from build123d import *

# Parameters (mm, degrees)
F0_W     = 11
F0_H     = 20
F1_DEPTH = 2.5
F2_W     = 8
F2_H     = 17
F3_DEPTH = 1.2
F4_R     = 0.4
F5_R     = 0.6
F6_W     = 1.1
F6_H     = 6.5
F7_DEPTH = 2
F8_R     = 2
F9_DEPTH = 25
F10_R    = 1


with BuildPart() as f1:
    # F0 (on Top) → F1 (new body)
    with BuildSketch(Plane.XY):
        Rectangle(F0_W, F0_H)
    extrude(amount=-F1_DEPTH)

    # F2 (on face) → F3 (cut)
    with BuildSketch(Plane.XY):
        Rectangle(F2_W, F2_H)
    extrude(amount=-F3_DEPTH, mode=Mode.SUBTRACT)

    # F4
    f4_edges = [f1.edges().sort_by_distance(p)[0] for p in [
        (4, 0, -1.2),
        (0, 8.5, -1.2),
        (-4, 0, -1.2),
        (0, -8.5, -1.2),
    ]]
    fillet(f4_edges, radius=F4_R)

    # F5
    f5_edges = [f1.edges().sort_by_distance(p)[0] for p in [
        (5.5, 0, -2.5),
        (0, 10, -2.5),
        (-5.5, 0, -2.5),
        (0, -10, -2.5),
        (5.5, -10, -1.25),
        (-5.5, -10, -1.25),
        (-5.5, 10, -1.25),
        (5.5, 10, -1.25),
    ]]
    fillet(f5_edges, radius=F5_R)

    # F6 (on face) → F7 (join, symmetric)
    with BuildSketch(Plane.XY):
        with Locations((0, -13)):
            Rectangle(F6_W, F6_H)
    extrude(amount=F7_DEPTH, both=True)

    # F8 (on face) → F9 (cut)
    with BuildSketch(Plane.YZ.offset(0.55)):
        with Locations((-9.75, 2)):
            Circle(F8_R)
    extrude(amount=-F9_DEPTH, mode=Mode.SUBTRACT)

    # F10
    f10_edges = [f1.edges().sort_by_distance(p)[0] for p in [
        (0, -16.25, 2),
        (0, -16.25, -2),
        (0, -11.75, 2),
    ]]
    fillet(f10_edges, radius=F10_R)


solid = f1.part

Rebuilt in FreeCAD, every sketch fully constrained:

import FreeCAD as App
import Part
import Sketcher

V = App.Vector


def edges_at(feature, points):
    """Names of the edges that pass closest to the given points."""
    edges = feature.Shape.Edges
    near = lambda p: min(range(len(edges)), key=lambda i: edges[i].distToShape(Part.Vertex(*p))[0])
    return sorted({f"Edge{near(p) + 1}" for p in points})

doc = App.newDocument("Part")
body = doc.addObject("PartDesign::Body", "Body")

# Sketch on XY plane
sketch1 = doc.addObject("Sketcher::SketchObject", "Sketch")
body.addObject(sketch1)
sketch1.AttachmentSupport = (doc.XY_Plane, [""])
sketch1.MapMode = "FlatFace"
sketch1.addGeometry([
    Part.LineSegment(V(-6, 10, 0), V(-6, -10, 0)),
    Part.LineSegment(V(-6, -10, 0), V(6, -10, 0)),
    Part.LineSegment(V(6, -10, 0), V(6, 10, 0)),
    Part.LineSegment(V(6, 10, 0), V(-6, 10, 0)),
], False)
sketch1.addConstraint([
    Sketcher.Constraint("Coincident", 0, 2, 1, 1),
    Sketcher.Constraint("Coincident", 1, 2, 2, 1),
    Sketcher.Constraint("Coincident", 2, 2, 3, 1),
    Sketcher.Constraint("Coincident", 3, 2, 0, 1),
    Sketcher.Constraint("Vertical", 0),
    Sketcher.Constraint("Horizontal", 1),
    Sketcher.Constraint("Vertical", 2),
    Sketcher.Constraint("Horizontal", 3),
    Sketcher.Constraint("Symmetric", 0, 2, 2, 2, -1, 1),
    Sketcher.Constraint("DistanceX", 1, 1, 1, 2, 11.0),
    Sketcher.Constraint("DistanceY", 0, 2, 0, 1, 20.0),
])
pad1 = doc.addObject("PartDesign::Pad", "Pad")
body.addObject(pad1)
pad1.Profile = sketch1
pad1.Length = 2.5
pad1.Reversed = True

# Sketch on XY plane
sketch2 = doc.addObject("Sketcher::SketchObject", "Sketch001")
body.addObject(sketch2)
sketch2.AttachmentSupport = (doc.XY_Plane, [""])
sketch2.MapMode = "FlatFace"
sketch2.addGeometry([
    Part.LineSegment(V(-4, 8, 0), V(-4, -8, 0)),
    Part.LineSegment(V(-4, -8, 0), V(4, -8, 0)),
    Part.LineSegment(V(4, -8, 0), V(4, 8, 0)),
    Part.LineSegment(V(4, 8, 0), V(-4, 8, 0)),
], False)
sketch2.addConstraint([
    Sketcher.Constraint("Coincident", 0, 2, 1, 1),
    Sketcher.Constraint("Coincident", 1, 2, 2, 1),
    Sketcher.Constraint("Coincident", 2, 2, 3, 1),
    Sketcher.Constraint("Coincident", 3, 2, 0, 1),
    Sketcher.Constraint("Vertical", 0),
    Sketcher.Constraint("Horizontal", 1),
    Sketcher.Constraint("Vertical", 2),
    Sketcher.Constraint("Horizontal", 3),
    Sketcher.Constraint("Symmetric", 0, 2, 2, 2, -1, 1),
    Sketcher.Constraint("DistanceX", 1, 1, 1, 2, 8.0),
    Sketcher.Constraint("DistanceY", 0, 2, 0, 1, 17.0),
])
pocket1 = doc.addObject("PartDesign::Pocket", "Pocket")
body.addObject(pocket1)
pocket1.Profile = sketch2
pocket1.Length = 1.2
doc.recompute()

fillet = doc.addObject("PartDesign::Fillet", "Fillet")
body.addObject(fillet)
fillet.Base = (pocket1, edges_at(pocket1, [
    (4, 0, -1.2),
    (0, 8.5, -1.2),
    (-4, 0, -1.2),
    (0, -8.5, -1.2),
]))
fillet.Radius = 0.4
doc.recompute()

fillet2 = doc.addObject("PartDesign::Fillet", "Fillet001")
body.addObject(fillet2)
fillet2.Base = (fillet, edges_at(fillet, [
    (5.5, 0, -2.5),
    (0, 10, -2.5),
    (-5.5, 0, -2.5),
    (0, -10, -2.5),
    (5.5, -10, -1.25),
    (-5.5, -10, -1.25),
    (-5.5, 10, -1.25),
    (5.5, 10, -1.25),
]))
fillet2.Radius = 0.6

# Sketch on XY plane
sketch3 = doc.addObject("Sketcher::SketchObject", "Sketch002")
body.addObject(sketch3)
sketch3.AttachmentSupport = (doc.XY_Plane, [""])
sketch3.MapMode = "FlatFace"
sketch3.addGeometry([
    Part.LineSegment(V(-0.6, -9.8, 0), V(-0.6, -16.2, 0)),
    Part.LineSegment(V(-0.6, -16.2, 0), V(0.6, -16.2, 0)),
    Part.LineSegment(V(0.6, -16.2, 0), V(0.6, -9.8, 0)),
    Part.LineSegment(V(0.6, -9.8, 0), V(-0.6, -9.8, 0)),
], False)
sketch3.addConstraint([
    Sketcher.Constraint("Coincident", 0, 2, 1, 1),
    Sketcher.Constraint("Coincident", 1, 2, 2, 1),
    Sketcher.Constraint("Coincident", 2, 2, 3, 1),
    Sketcher.Constraint("Coincident", 3, 2, 0, 1),
    Sketcher.Constraint("Vertical", 0),
    Sketcher.Constraint("Horizontal", 1),
    Sketcher.Constraint("Vertical", 2),
    Sketcher.Constraint("Horizontal", 3),
    Sketcher.Constraint("DistanceX", 1, 1, 1, 2, 1.1),
    Sketcher.Constraint("DistanceY", 0, 2, 0, 1, 6.5),
    Sketcher.Constraint("DistanceX", 0, 2, -1, 1, 0.55),
    Sketcher.Constraint("DistanceY", 0, 2, -1, 1, 16.25),
])
pad2 = doc.addObject("PartDesign::Pad", "Pad001")
body.addObject(pad2)
pad2.Profile = sketch3
pad2.Length = 4
pad2.Midplane = True

# Sketch on YZ plane
sketch4 = doc.addObject("Sketcher::SketchObject", "Sketch003")
body.addObject(sketch4)
sketch4.AttachmentSupport = (doc.YZ_Plane, [""])
sketch4.MapMode = "FlatFace"
sketch4.AttachmentOffset = App.Placement(V(0, 0, 0.55), App.Rotation())
sketch4.addGeometry(Part.Circle(V(-9.8, 2, 0), V(0, 0, 1), 2), False)
sketch4.addConstraint([
    Sketcher.Constraint("Diameter", 0, 4.0),
    Sketcher.Constraint("DistanceY", -1, 1, 0, 3, 2.0),
    Sketcher.Constraint("DistanceX", 0, 3, -1, 1, 9.75),
])
pocket2 = doc.addObject("PartDesign::Pocket", "Pocket001")
body.addObject(pocket2)
pocket2.Profile = sketch4
pocket2.Length = 25
doc.recompute()

fillet3 = doc.addObject("PartDesign::Fillet", "Fillet002")
body.addObject(fillet3)
fillet3.Base = (pocket2, edges_at(pocket2, [(0, -16.25, 2), (0, -16.25, -2), (0, -11.75, 2)]))
fillet3.Radius = 1

doc.recompute()
